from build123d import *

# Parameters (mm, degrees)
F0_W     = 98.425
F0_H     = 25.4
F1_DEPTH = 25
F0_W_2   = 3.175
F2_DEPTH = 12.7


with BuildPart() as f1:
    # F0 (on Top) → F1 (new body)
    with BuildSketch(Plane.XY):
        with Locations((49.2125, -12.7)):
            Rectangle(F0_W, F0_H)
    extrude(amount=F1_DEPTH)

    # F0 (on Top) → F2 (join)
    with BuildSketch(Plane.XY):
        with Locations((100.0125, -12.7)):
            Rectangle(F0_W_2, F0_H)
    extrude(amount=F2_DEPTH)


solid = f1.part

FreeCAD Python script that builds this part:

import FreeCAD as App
import Part
import Sketcher
Q = App.Units.Quantity

doc = App.newDocument("Part")
body = doc.addObject("PartDesign::Body", "Body")

# Sketch on XY plane
sketch1 = body.newObject("Sketcher::SketchObject", "Sketch")
sketch1.AttachmentSupport = (doc.getObject("XY_Plane"), [""])
sketch1.MapMode = "FlatFace"
sketch1.addGeometry([
    Part.LineSegment(App.Vector(0, 0, 0), App.Vector(0, -25, 0)),
    Part.LineSegment(App.Vector(0, -25, 0), App.Vector(98, -25, 0)),
    Part.LineSegment(App.Vector(98, -25, 0), App.Vector(98, 0, 0)),
    Part.LineSegment(App.Vector(98, 0, 0), App.Vector(0, 0, 0)),
], False)
sketch1.addConstraint([
    Sketcher.Constraint("Coincident", 0, 2, 1, 1),
    Sketcher.Constraint("Coincident", 1, 2, 2, 1),
    Sketcher.Constraint("Coincident", 2, 2, 3, 1),
    Sketcher.Constraint("Coincident", 3, 2, 0, 1),
    Sketcher.Constraint("Vertical", 0),
    Sketcher.Constraint("Horizontal", 1),
    Sketcher.Constraint("Vertical", 2),
    Sketcher.Constraint("Horizontal", 3),
    Sketcher.Constraint("Coincident", 3, 2, -1, 1),
    Sketcher.Constraint("DistanceY", 0, 2, 0, 1, Q("1 in")),
    Sketcher.Constraint("DistanceX", 1, 1, 1, 2, Q("3.875 in")),
])
pad1 = body.newObject("PartDesign::Pad", "Pad")
pad1.Profile = sketch1
pad1.Length = 25

# Sketch on XY plane
sketch2 = body.newObject("Sketcher::SketchObject", "Sketch001")
sketch2.AttachmentSupport = (doc.getObject("XY_Plane"), [""])
sketch2.MapMode = "FlatFace"
sketch2.addGeometry([
    Part.LineSegment(App.Vector(98.4, 0, 0), App.Vector(98.4, -25.4, 0)),
    Part.LineSegment(App.Vector(98.4, -25.4, 0), App.Vector(101.6, -25.4, 0)),
    Part.LineSegment(App.Vector(101.6, -25.4, 0), App.Vector(101.6, 0, 0)),
    Part.LineSegment(App.Vector(101.6, 0, 0), App.Vector(98.4, 0, 0)),
], False)
sketch2.addConstraint([
    Sketcher.Constraint("Coincident", 0, 2, 1, 1),
    Sketcher.Constraint("Coincident", 1, 2, 2, 1),
    Sketcher.Constraint("Coincident", 2, 2, 3, 1),
    Sketcher.Constraint("Coincident", 3, 2, 0, 1),
    Sketcher.Constraint("Vertical", 0),
    Sketcher.Constraint("Horizontal", 1),
    Sketcher.Constraint("Vertical", 2),
    Sketcher.Constraint("Horizontal", 3),
    Sketcher.Constraint("PointOnObject", 2, 2, -1),
    Sketcher.Constraint("DistanceY", 0, 2, 0, 1, Q("1 in")),
    Sketcher.Constraint("DistanceX", -1, 1, 1, 2, Q("4 in")),
    Sketcher.Constraint("DistanceX", 1, 1, 1, 2, Q("0.125 in")),
])
pad2 = body.newObject("PartDesign::Pad", "Pad001")
pad2.Profile = sketch2
pad2.Length = Q("0.5 in")

doc.recompute()
